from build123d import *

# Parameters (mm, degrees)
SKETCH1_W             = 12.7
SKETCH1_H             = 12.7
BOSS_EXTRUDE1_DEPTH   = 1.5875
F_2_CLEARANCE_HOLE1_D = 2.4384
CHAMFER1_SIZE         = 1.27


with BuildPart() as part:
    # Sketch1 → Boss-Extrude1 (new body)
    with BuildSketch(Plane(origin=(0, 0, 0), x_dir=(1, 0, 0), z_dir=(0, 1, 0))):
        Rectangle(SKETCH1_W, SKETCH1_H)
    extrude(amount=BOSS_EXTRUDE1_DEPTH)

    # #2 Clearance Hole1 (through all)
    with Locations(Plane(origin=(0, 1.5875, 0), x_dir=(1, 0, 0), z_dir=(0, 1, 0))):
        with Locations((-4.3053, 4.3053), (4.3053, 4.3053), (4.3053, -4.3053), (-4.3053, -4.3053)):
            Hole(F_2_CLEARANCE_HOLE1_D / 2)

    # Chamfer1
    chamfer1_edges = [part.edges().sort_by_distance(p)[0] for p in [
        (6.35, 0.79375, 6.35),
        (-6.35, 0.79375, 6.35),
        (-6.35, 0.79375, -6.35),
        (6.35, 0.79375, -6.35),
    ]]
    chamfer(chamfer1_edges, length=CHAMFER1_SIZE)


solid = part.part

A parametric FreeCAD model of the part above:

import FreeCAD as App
import Part
import Sketcher

V = App.Vector
Q = App.Units.Quantity


def edges_at(feature, points):
    """Names of the edges that pass closest to the given points."""
    edges = feature.Shape.Edges
    near = lambda p: min(range(len(edges)), key=lambda i: edges[i].distToShape(Part.Vertex(*p))[0])
    return sorted({f"Edge{near(p) + 1}" for p in points})

doc = App.newDocument("Part")
body = doc.addObject("PartDesign::Body", "Body")

sketch1 = body.newObject("Sketcher::SketchObject", "Sketch")
sketch1.AttachmentSupport = (doc.getObject("XZ_Plane"), [""])
sketch1.MapMode = "FlatFace"
sketch1.addGeometry([
    Part.LineSegment(V(-6, -6, 0), V(-6, 6, 0)),
    Part.LineSegment(V(-6, 6, 0), V(6, 6, 0)),
    Part.LineSegment(V(6, 6, 0), V(6, -6, 0)),
    Part.LineSegment(V(6, -6, 0), V(-6, -6, 0)),
], False)
sketch1.addConstraint([
    Sketcher.Constraint("Coincident", 0, 2, 1, 1),
    Sketcher.Constraint("Coincident", 1, 2, 2, 1),
    Sketcher.Constraint("Coincident", 2, 2, 3, 1),
    Sketcher.Constraint("Coincident", 3, 2, 0, 1),
    Sketcher.Constraint("Vertical", 0),
    Sketcher.Constraint("Horizontal", 1),
    Sketcher.Constraint("Vertical", 2),
    Sketcher.Constraint("Horizontal", 3),
    Sketcher.Constraint("Symmetric", 0, 2, 2, 2, -1, 1),
    Sketcher.Constraint("Equal", 3, 0),
    Sketcher.Constraint("DistanceX", 1, 1, 1, 2, Q("0.5 in")),
])
pad1 = body.newObject("PartDesign::Pad", "Pad")
pad1.Profile = sketch1
pad1.Length = Q("0.0625 in")
pad1.Reversed = True

sketch2 = body.newObject("Sketcher::SketchObject", "Sketch001")
sketch2.AttachmentSupport = (doc.getObject("XZ_Plane"), [""])
sketch2.MapMode = "FlatFace"
sketch2.AttachmentOffset = App.Placement(V(0, 0, -0.0625 * 25.4), App.Rotation())
sketch2.addGeometry([
    Part.Circle(V(-4.3, -4.3, 0), V(0, 0, 1), 1.2),
    Part.Circle(V(4.3, -4.3, 0), V(0, 0, 1), 1.2),
    Part.Circle(V(4.3, 4.3, 0), V(0, 0, 1), 1.2),
    Part.Circle(V(-4.3, 4.3, 0), V(0, 0, 1), 1.2),
], False)
sketch2.addConstraint([
    Sketcher.Constraint("Equal", 0, 1),
    Sketcher.Constraint("Equal", 1, 2),
    Sketcher.Constraint("Equal", 2, 3),
    Sketcher.Constraint("Symmetric", 0, 3, 2, 3, -1, 1),
    Sketcher.Constraint("Symmetric", 1, 3, 3, 3, -1, 1),
    Sketcher.Constraint("Symmetric", 0, 3, 1, 3, -2),
    Sketcher.Constraint("Diameter", 0, Q("0.096 in")),
    Sketcher.Constraint("DistanceX", 0, 3, 1, 3, Q("0.339 in")),
    Sketcher.Constraint("DistanceY", 1, 3, 2, 3, Q("0.339 in")),
])
doc.recompute()
hole = body.newObject("PartDesign::Hole", "Hole")
hole.Profile = sketch2
hole.ThreadType = "None"
hole.Diameter = Q("0.096 in")
hole.DepthType = "ThroughAll"
hole.Reversed = True
doc.recompute()

chamfer = body.newObject("PartDesign::Chamfer", "Chamfer")
chamfer.Base = (hole, edges_at(hole, [
    (6.35, 0.794, 6.35),
    (-6.35, 0.794, 6.35),
    (-6.35, 0.794, -6.35),
    (6.35, 0.794, -6.35),
]))
chamfer.Size = Q("0.05 in")

doc.recompute()
